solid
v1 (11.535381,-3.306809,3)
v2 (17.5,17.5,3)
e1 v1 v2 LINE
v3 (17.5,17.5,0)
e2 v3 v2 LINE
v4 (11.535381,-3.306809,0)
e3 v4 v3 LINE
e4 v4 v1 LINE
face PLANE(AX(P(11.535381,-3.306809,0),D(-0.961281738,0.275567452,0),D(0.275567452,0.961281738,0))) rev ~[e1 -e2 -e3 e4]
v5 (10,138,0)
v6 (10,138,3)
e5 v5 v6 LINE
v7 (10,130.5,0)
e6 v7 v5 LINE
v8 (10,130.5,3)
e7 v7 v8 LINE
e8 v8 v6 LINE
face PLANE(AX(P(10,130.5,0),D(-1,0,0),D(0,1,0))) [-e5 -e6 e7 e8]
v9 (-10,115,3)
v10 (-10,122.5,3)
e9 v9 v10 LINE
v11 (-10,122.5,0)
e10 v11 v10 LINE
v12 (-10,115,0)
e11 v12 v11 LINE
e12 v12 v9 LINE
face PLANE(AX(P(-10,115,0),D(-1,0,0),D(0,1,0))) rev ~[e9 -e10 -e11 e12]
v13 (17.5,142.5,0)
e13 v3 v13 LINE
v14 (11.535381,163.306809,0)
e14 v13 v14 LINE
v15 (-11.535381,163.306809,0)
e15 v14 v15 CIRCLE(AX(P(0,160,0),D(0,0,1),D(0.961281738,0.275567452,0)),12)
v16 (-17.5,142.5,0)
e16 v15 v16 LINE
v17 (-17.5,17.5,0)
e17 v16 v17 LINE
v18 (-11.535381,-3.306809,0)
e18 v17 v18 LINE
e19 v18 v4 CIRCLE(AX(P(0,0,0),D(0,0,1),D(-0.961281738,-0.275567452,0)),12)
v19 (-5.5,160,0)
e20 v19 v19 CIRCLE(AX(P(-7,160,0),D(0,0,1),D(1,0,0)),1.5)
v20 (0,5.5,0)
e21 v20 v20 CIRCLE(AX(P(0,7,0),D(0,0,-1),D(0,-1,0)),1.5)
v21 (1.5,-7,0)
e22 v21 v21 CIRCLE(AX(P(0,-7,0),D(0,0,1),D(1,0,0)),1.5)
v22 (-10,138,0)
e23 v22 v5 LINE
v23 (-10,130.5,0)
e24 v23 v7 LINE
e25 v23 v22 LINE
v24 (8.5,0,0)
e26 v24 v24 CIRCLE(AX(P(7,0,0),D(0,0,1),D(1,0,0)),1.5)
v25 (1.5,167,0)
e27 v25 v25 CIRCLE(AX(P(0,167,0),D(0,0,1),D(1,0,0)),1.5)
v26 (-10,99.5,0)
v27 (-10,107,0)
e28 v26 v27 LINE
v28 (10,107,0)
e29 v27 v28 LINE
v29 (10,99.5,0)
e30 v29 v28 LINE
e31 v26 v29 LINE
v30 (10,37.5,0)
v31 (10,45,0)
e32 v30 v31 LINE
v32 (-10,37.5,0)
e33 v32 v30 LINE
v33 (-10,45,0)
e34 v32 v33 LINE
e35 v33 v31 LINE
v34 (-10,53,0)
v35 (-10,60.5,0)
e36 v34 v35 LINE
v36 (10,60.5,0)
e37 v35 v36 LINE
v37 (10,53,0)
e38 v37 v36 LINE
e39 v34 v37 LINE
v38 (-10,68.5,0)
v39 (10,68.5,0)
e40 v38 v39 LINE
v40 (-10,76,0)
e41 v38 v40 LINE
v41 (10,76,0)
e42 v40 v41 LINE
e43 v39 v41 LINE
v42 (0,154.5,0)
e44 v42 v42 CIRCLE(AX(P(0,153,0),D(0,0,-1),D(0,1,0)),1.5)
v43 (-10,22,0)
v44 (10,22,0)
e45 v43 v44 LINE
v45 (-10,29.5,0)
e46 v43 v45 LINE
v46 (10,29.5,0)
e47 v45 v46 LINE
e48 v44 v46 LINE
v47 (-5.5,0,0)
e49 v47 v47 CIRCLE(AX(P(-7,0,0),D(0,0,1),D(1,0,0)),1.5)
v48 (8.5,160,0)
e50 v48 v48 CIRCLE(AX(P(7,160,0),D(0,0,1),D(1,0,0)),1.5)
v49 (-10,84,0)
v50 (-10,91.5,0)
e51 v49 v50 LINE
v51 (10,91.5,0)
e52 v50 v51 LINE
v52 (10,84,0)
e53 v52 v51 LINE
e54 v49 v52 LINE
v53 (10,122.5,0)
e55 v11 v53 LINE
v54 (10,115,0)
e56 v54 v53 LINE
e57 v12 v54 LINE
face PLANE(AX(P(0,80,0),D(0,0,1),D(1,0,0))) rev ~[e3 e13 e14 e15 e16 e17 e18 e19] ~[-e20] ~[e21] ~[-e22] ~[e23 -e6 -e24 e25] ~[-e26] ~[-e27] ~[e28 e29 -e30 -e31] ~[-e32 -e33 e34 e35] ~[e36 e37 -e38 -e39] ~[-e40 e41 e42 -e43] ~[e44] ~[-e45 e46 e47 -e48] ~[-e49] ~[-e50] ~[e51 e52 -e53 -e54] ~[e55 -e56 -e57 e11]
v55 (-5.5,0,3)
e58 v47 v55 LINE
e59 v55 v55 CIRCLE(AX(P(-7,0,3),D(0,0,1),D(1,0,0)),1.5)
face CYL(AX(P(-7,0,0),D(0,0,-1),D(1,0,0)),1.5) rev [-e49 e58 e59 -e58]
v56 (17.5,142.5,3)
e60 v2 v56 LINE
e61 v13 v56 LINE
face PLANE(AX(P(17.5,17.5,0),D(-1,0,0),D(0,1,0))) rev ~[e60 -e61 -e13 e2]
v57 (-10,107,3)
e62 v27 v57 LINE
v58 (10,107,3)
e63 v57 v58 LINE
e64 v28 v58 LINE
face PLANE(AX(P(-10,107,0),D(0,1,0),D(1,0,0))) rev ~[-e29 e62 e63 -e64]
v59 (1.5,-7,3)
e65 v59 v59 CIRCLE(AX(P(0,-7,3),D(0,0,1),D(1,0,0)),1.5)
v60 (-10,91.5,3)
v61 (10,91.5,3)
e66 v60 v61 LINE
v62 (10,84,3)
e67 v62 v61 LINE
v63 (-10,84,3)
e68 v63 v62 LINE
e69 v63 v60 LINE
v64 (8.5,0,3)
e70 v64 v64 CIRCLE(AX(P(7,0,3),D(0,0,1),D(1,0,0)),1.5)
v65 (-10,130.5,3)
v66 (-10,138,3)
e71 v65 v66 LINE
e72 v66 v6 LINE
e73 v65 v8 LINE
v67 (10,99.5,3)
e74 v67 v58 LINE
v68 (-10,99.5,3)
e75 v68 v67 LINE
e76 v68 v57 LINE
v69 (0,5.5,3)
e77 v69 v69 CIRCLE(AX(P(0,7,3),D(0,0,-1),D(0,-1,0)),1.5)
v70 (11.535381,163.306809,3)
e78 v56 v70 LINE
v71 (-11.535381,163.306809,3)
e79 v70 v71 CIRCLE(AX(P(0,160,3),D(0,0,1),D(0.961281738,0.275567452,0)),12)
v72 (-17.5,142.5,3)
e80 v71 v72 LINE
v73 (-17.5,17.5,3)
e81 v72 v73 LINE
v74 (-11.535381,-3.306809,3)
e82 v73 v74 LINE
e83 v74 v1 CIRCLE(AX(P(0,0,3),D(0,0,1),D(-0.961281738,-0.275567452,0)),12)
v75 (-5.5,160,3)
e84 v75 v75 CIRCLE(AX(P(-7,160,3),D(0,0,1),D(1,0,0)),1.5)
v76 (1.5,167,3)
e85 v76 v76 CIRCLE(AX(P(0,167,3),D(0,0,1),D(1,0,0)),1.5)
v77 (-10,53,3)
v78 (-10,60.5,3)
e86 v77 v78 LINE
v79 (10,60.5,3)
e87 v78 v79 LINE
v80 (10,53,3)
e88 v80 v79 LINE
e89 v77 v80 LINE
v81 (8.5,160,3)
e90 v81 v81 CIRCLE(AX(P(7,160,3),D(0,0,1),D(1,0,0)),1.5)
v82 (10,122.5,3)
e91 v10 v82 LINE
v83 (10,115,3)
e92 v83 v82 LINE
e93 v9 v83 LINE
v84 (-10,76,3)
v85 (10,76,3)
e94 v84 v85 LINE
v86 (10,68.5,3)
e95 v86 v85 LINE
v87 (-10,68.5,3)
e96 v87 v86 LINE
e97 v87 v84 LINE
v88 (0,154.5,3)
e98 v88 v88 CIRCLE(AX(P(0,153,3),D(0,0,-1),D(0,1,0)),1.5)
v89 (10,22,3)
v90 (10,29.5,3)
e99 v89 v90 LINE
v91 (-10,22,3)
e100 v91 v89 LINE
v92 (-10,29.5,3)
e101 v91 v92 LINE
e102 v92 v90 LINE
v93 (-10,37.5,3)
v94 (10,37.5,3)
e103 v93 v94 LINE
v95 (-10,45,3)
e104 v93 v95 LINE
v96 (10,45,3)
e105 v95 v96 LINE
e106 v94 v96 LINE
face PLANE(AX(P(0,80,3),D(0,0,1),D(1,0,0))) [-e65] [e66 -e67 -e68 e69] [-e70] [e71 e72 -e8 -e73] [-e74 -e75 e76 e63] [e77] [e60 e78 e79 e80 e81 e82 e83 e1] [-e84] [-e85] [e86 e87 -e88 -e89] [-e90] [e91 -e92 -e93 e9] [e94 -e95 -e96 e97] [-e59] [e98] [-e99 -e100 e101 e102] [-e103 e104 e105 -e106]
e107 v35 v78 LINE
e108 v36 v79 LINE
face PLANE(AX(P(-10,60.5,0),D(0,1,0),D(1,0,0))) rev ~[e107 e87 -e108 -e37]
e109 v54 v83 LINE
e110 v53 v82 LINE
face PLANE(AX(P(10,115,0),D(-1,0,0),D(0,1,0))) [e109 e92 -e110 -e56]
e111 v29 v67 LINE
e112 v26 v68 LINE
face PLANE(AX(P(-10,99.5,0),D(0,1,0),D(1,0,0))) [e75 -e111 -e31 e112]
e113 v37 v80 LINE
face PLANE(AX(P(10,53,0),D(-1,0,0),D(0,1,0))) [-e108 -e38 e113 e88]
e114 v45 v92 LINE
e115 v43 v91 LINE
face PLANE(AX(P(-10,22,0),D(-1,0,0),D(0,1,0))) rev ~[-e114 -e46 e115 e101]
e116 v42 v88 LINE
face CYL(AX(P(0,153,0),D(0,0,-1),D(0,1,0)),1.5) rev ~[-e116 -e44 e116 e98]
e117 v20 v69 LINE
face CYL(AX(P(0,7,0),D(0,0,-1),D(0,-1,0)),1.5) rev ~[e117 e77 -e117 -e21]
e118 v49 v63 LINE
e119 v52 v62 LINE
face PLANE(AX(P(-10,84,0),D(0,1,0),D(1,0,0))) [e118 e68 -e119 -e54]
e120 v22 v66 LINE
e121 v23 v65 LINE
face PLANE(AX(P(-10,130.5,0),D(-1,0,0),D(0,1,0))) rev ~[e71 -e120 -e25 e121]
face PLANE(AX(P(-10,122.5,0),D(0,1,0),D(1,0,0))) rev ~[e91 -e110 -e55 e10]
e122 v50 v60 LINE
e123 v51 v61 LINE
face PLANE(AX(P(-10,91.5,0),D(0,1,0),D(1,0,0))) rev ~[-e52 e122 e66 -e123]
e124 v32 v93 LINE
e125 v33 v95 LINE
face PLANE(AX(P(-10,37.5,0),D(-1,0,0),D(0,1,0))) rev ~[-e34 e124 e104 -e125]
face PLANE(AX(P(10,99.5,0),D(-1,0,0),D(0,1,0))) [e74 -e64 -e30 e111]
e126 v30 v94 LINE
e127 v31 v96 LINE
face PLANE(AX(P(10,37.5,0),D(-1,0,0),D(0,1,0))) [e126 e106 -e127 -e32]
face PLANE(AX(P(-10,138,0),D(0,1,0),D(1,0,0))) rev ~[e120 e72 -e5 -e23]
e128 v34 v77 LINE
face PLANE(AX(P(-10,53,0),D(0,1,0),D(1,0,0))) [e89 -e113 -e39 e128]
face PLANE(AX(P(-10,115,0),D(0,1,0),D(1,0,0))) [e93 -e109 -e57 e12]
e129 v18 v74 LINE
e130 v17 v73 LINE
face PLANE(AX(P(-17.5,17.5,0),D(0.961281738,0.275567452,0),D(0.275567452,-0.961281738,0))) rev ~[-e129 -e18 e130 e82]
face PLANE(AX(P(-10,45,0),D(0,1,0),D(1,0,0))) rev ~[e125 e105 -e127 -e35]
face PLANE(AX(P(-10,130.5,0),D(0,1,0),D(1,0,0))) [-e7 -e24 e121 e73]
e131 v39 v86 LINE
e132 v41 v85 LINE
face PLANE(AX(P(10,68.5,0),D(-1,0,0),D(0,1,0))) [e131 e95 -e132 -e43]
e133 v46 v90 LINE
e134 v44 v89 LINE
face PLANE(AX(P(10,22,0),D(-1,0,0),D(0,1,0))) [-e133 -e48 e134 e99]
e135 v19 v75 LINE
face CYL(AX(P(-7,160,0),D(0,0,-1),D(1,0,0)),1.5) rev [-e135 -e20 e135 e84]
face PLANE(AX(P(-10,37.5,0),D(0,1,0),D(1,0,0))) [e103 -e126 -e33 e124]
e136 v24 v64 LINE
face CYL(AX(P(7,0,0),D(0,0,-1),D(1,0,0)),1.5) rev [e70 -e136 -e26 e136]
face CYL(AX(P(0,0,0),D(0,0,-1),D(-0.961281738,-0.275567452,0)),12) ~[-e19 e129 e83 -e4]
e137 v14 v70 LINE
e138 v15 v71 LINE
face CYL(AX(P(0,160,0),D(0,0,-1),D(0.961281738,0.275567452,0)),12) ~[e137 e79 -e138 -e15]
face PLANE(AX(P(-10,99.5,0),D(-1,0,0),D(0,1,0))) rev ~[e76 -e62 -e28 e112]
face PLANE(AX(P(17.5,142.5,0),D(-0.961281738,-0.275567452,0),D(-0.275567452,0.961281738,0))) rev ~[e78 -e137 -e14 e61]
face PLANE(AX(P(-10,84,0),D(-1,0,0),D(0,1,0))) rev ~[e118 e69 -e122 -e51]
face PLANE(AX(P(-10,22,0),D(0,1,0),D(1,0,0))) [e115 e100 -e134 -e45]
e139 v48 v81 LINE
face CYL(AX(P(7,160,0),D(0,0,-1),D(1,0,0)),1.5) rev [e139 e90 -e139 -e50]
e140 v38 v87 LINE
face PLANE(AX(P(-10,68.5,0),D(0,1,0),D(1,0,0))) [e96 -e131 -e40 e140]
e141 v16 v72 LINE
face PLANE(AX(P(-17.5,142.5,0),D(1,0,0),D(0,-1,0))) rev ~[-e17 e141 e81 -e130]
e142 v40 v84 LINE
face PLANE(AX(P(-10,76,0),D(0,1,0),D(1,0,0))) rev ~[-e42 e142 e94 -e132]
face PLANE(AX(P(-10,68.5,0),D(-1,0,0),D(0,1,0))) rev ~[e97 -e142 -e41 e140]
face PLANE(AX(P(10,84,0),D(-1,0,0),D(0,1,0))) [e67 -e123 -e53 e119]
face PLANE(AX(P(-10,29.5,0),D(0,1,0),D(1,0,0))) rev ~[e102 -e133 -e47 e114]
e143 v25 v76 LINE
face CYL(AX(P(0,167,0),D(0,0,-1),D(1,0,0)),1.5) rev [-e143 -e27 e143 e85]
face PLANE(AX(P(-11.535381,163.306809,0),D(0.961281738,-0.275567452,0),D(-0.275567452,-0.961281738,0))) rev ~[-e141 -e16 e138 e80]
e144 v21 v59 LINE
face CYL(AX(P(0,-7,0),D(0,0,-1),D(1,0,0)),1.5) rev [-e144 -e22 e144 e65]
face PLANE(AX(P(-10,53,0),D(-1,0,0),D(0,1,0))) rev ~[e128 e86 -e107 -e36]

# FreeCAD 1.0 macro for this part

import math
import FreeCAD as App
import Part
import Sketcher
from FreeCAD import Vector


def add_polygon(sketch, points):
    """Adds a closed chain of lines whose ends are joined by coincident constraints."""
    first, n = sketch.GeometryCount, len(points)
    for a, b in zip(points, points[1:] + points[:1]):
        sketch.addGeometry(Part.LineSegment(App.Vector(*a, 0), App.Vector(*b, 0)), False)
    for i in range(n):
        sketch.addConstraint(Sketcher.Constraint("Coincident", first + i, 2, first + (i + 1) % n, 1))

doc = App.newDocument("Part")
body = doc.addObject("PartDesign::Body", "Body")

sketch1 = body.newObject("Sketcher::SketchObject", "Sketch")
sketch1.AttachmentSupport = (doc.getObject("XY_Plane"), [""])
sketch1.MapMode = "FlatFace"
sketch1.addGeometry(Part.LineSegment(Vector(-17.5, 142.5, 0), Vector(-17.5, 17.5, 0)), False)
sketch1.addGeometry(Part.LineSegment(Vector(-17.5, 17.5, 0), Vector(-11.5, -3.3, 0)), False)
sketch1.addGeometry(Part.ArcOfCircle(Part.Circle(Vector(0, 0, 0), Vector(0, 0, 1), 12), math.radians(-164), math.radians(-16)), False)
sketch1.addGeometry(Part.LineSegment(Vector(11.5, -3.3, 0), Vector(17.5, 17.5, 0)), False)
sketch1.addGeometry(Part.LineSegment(Vector(17.5, 17.5, 0), Vector(17.5, 142.5, 0)), False)
sketch1.addGeometry(Part.LineSegment(Vector(17.5, 142.5, 0), Vector(11.5, 163.3, 0)), False)
sketch1.addGeometry(Part.ArcOfCircle(Part.Circle(Vector(0, 160, 0), Vector(0, 0, 1), 12), math.radians(16), math.radians(164)), False)
sketch1.addGeometry(Part.LineSegment(Vector(-11.5, 163.3, 0), Vector(-17.5, 142.5, 0)), False)
sketch1.addGeometry(Part.Circle(Vector(-7, 0, 0), Vector(0, 0, 1), 1.5), False)
sketch1.addGeometry(Part.Circle(Vector(0, -7, 0), Vector(0, 0, 1), 1.5), False)
sketch1.addGeometry(Part.Circle(Vector(0, 7, 0), Vector(0, 0, 1), 1.5), False)
add_polygon(sketch1, [(10, 22), (-10, 22), (-10, 29.5), (10, 29.5)])
sketch1.addGeometry(Part.Circle(Vector(7, 0, 0), Vector(0, 0, 1), 1.5), False)
add_polygon(sketch1, [(10, 37.5), (-10, 37.5), (-10, 45), (10, 45)])
add_polygon(sketch1, [(10, 53), (-10, 53), (-10, 60.5), (10, 60.5)])
add_polygon(sketch1, [(10, 68.5), (-10, 68.5), (-10, 76), (10, 76)])
sketch1.addGeometry(Part.Circle(Vector(-7, 160, 0), Vector(0, 0, 1), 1.5), False)
add_polygon(sketch1, [(10, 84), (-10, 84), (-10, 91.5), (10, 91.5)])
add_polygon(sketch1, [(10, 99.5), (-10, 99.5), (-10, 107), (10, 107)])
add_polygon(sketch1, [(10, 115), (-10, 115), (-10, 122.5), (10, 122.5)])
add_polygon(sketch1, [(10, 130.5), (-10, 130.5), (-10, 138), (10, 138)])
sketch1.addGeometry(Part.Circle(Vector(0, 153, 0), Vector(0, 0, 1), 1.5), False)
sketch1.addGeometry(Part.Circle(Vector(0, 167, 0), Vector(0, 0, 1), 1.5), False)
sketch1.addGeometry(Part.Circle(Vector(7, 160, 0), Vector(0, 0, 1), 1.5), False)
sketch1.addConstraint(Sketcher.Constraint("Coincident", 0, 2, 1, 1))
sketch1.addConstraint(Sketcher.Constraint("Tangent", 1, 2, 2, 1))
sketch1.addConstraint(Sketcher.Constraint("Tangent", 2, 2, 3, 1))
sketch1.addConstraint(Sketcher.Constraint("Coincident", 3, 2, 4, 1))
sketch1.addConstraint(Sketcher.Constraint("Coincident", 4, 2, 5, 1))
sketch1.addConstraint(Sketcher.Constraint("Tangent", 5, 2, 6, 1))
sketch1.addConstraint(Sketcher.Constraint("Tangent", 6, 2, 7, 1))
sketch1.addConstraint(Sketcher.Constraint("Coincident", 7, 2, 0, 1))
sketch1.addConstraint(Sketcher.Constraint("Vertical", 0))
sketch1.addConstraint(Sketcher.Constraint("Vertical", 4))
sketch1.addConstraint(Sketcher.Constraint("Horizontal", 11))
sketch1.addConstraint(Sketcher.Constraint("Vertical", 12))
sketch1.addConstraint(Sketcher.Constraint("Horizontal", 13))
sketch1.addConstraint(Sketcher.Constraint("Vertical", 14))
sketch1.addConstraint(Sketcher.Constraint("Horizontal", 16))
sketch1.addConstraint(Sketcher.Constraint("Vertical", 17))
sketch1.addConstraint(Sketcher.Constraint("Horizontal", 18))
sketch1.addConstraint(Sketcher.Constraint("Vertical", 19))
sketch1.addConstraint(Sketcher.Constraint("Horizontal", 20))
sketch1.addConstraint(Sketcher.Constraint("Vertical", 21))
sketch1.addConstraint(Sketcher.Constraint("Horizontal", 22))
sketch1.addConstraint(Sketcher.Constraint("Vertical", 23))
sketch1.addConstraint(Sketcher.Constraint("Horizontal", 24))
sketch1.addConstraint(Sketcher.Constraint("Vertical", 25))
sketch1.addConstraint(Sketcher.Constraint("Horizontal", 26))
sketch1.addConstraint(Sketcher.Constraint("Vertical", 27))
sketch1.addConstraint(Sketcher.Constraint("Horizontal", 29))
sketch1.addConstraint(Sketcher.Constraint("Vertical", 30))
sketch1.addConstraint(Sketcher.Constraint("Horizontal", 31))
sketch1.addConstraint(Sketcher.Constraint("Vertical", 32))
sketch1.addConstraint(Sketcher.Constraint("Horizontal", 33))
sketch1.addConstraint(Sketcher.Constraint("Vertical", 34))
sketch1.addConstraint(Sketcher.Constraint("Horizontal", 35))
sketch1.addConstraint(Sketcher.Constraint("Vertical", 36))
sketch1.addConstraint(Sketcher.Constraint("Horizontal", 37))
sketch1.addConstraint(Sketcher.Constraint("Vertical", 38))
sketch1.addConstraint(Sketcher.Constraint("Horizontal", 39))
sketch1.addConstraint(Sketcher.Constraint("Vertical", 40))
sketch1.addConstraint(Sketcher.Constraint("Horizontal", 41))
sketch1.addConstraint(Sketcher.Constraint("Vertical", 42))
sketch1.addConstraint(Sketcher.Constraint("Horizontal", 43))
sketch1.addConstraint(Sketcher.Constraint("Vertical", 44))
sketch1.addConstraint(Sketcher.Constraint("Coincident", 2, 3, -1, 1))
sketch1.addConstraint(Sketcher.Constraint("Equal", 2, 6))
sketch1.addConstraint(Sketcher.Constraint("Equal", 8, 9))
sketch1.addConstraint(Sketcher.Constraint("Equal", 9, 10))
sketch1.addConstraint(Sketcher.Constraint("Equal", 10, 15))
sketch1.addConstraint(Sketcher.Constraint("Equal", 15, 28))
sketch1.addConstraint(Sketcher.Constraint("Equal", 28, 45))
sketch1.addConstraint(Sketcher.Constraint("Equal", 45, 46))
sketch1.addConstraint(Sketcher.Constraint("Equal", 46, 47))
sketch1.addConstraint(Sketcher.Constraint("Symmetric", 9, 3, 10, 3, -1, 1))
sketch1.addConstraint(Sketcher.Constraint("Symmetric", 8, 3, 15, 3, -1, 1))
sketch1.addConstraint(Sketcher.Constraint("Symmetric", 28, 3, 47, 3, -2))
sketch1.addConstraint(Sketcher.Constraint("Symmetric", 0, 2, 3, 2, -2))
sketch1.addConstraint(Sketcher.Constraint("Symmetric", 5, 2, 6, 2, -2))
sketch1.addConstraint(Sketcher.Constraint("PointOnObject", 8, 3, -1))
sketch1.addConstraint(Sketcher.Constraint("PointOnObject", 9, 3, -2))
sketch1.addConstraint(Sketcher.Constraint("PointOnObject", 45, 3, -2))
sketch1.addConstraint(Sketcher.Constraint("PointOnObject", 46, 3, -2))
sketch1.addConstraint(Sketcher.Constraint("Parallel", 1, 5))
sketch1.addConstraint(Sketcher.Constraint("Horizontal", 6, 3, 28, 3))
sketch1.addConstraint(Sketcher.Constraint("Vertical", 8, 3, 28, 3))
sketch1.addConstraint(Sketcher.Constraint("Vertical", 12, 2, 16, 2))
sketch1.addConstraint(Sketcher.Constraint("Vertical", 14, 2, 18, 2))
sketch1.addConstraint(Sketcher.Constraint("Vertical", 17, 2, 20, 2))
sketch1.addConstraint(Sketcher.Constraint("Vertical", 19, 2, 22, 2))
sketch1.addConstraint(Sketcher.Constraint("Vertical", 21, 2, 24, 2))
sketch1.addConstraint(Sketcher.Constraint("Vertical", 23, 2, 26, 2))
sketch1.addConstraint(Sketcher.Constraint("Vertical", 25, 2, 29, 2))
sketch1.addConstraint(Sketcher.Constraint("Vertical", 27, 2, 31, 2))
sketch1.addConstraint(Sketcher.Constraint("Vertical", 30, 2, 33, 2))
sketch1.addConstraint(Sketcher.Constraint("Vertical", 32, 2, 35, 2))
sketch1.addConstraint(Sketcher.Constraint("Vertical", 34, 2, 37, 2))
sketch1.addConstraint(Sketcher.Constraint("Vertical", 36, 2, 39, 2))
sketch1.addConstraint(Sketcher.Constraint("Vertical", 38, 2, 41, 2))
sketch1.addConstraint(Sketcher.Constraint("Vertical", 40, 2, 43, 2))
sketch1.addConstraint(Sketcher.Constraint("Equal", 14, 17))
sketch1.addConstraint(Sketcher.Constraint("Equal", 19, 21))
sketch1.addConstraint(Sketcher.Constraint("Equal", 23, 25))
sketch1.addConstraint(Sketcher.Constraint("Equal", 27, 30))
sketch1.addConstraint(Sketcher.Constraint("Equal", 32, 34))
sketch1.addConstraint(Sketcher.Constraint("Equal", 36, 38))
sketch1.addConstraint(Sketcher.Constraint("Equal", 40, 42))
sketch1.addConstraint(Sketcher.Constraint("Diameter", 8, 3.0))
sketch1.addConstraint(Sketcher.Constraint("Radius", 2, 12.0))
sketch1.addConstraint(Sketcher.Constraint("DistanceX", 11, 2, 11, 1, 20.0))
sketch1.addConstraint(Sketcher.Constraint("DistanceY", 0, 2, 0, 1, 125.0))
sketch1.addConstraint(Sketcher.Constraint("DistanceY", 12, 1, 12, 2, 7.5))
sketch1.addConstraint(Sketcher.Constraint("DistanceY", -1, 1, 6, 3, 160.0))
sketch1.addConstraint(Sketcher.Constraint("DistanceX", 8, 3, -1, 1, 7.0))
sketch1.addConstraint(Sketcher.Constraint("DistanceY", 9, 3, -1, 1, 7.0))
sketch1.addConstraint(Sketcher.Constraint("DistanceY", -1, 1, 45, 3, 153.0))
sketch1.addConstraint(Sketcher.Constraint("DistanceY", -1, 1, 46, 3, 167.0))
sketch1.addConstraint(Sketcher.Constraint("DistanceX", 11, 2, -1, 1, 10.0))
sketch1.addConstraint(Sketcher.Constraint("DistanceY", -1, 1, 11, 2, 22.0))
sketch1.addConstraint(Sketcher.Constraint("DistanceY", -1, 1, 17, 2, 45.0))
sketch1.addConstraint(Sketcher.Constraint("DistanceY", -1, 1, 20, 2, 53.0))
sketch1.addConstraint(Sketcher.Constraint("DistanceY", -1, 1, 25, 2, 76.0))
sketch1.addConstraint(Sketcher.Constraint("DistanceY", -1, 1, 29, 2, 84.0))
sketch1.addConstraint(Sketcher.Constraint("DistanceY", -1, 1, 34, 2, 107.0))
sketch1.addConstraint(Sketcher.Constraint("DistanceY", -1, 1, 37, 2, 115.0))
sketch1.addConstraint(Sketcher.Constraint("DistanceY", -1, 1, 42, 2, 138.0))
sketch1.addConstraint(Sketcher.Constraint("DistanceX", 0, 2, -1, 1, 17.5))
pad1 = body.newObject("PartDesign::Pad", "Pad")
pad1.Profile = sketch1
pad1.Length = 3

doc.recompute()
